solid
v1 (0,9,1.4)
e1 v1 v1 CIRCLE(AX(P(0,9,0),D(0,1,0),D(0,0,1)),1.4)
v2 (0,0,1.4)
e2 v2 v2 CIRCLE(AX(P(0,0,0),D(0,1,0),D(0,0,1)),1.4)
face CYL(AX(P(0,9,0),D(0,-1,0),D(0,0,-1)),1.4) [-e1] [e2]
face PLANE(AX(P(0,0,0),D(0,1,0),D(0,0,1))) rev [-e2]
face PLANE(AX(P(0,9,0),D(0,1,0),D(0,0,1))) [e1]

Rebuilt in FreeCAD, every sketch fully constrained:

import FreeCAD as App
import Part
import Sketcher
from FreeCAD import Vector
Q = App.Units.Quantity

doc = App.newDocument("Part")
body = doc.addObject("PartDesign::Body", "Body")

sketch1 = body.newObject("Sketcher::SketchObject", "Sketch")
sketch1.AttachmentSupport = (doc.getObject("XZ_Plane"), [""])
sketch1.MapMode = "FlatFace"
sketch1.addGeometry(Part.Circle(Vector(0, 0, 0), Vector(0, 0, 1), 1.4), False)
sketch1.addConstraint([
    Sketcher.Constraint("Coincident", 0, 3, -1, 1),
    Sketcher.Constraint("Diameter", 0, Q("2.8 mm")),
])
pad1 = body.newObject("PartDesign::Pad", "Pad")
pad1.Profile = sketch1
pad1.Length = 9
pad1.Reversed = True

doc.recompute()
